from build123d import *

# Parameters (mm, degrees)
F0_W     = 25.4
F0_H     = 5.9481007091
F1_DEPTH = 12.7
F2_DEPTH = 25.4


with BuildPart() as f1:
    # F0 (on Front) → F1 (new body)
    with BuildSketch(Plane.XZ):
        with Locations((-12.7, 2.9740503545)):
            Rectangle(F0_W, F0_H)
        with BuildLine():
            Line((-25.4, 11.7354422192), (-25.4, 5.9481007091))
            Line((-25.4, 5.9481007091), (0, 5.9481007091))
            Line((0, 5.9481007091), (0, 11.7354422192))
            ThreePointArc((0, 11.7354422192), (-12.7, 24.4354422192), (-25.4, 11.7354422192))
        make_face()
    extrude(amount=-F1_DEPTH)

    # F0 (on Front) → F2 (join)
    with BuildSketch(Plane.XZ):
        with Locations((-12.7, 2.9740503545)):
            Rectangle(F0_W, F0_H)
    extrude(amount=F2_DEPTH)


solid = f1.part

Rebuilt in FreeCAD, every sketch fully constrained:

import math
import FreeCAD as App
import Part
import Sketcher
from FreeCAD import Vector
Q = App.Units.Quantity


def add_polygon(sketch, points):
    """Adds a closed chain of lines whose ends are joined by coincident constraints."""
    first, n = sketch.GeometryCount, len(points)
    for a, b in zip(points, points[1:] + points[:1]):
        sketch.addGeometry(Part.LineSegment(App.Vector(*a, 0), App.Vector(*b, 0)), False)
    for i in range(n):
        sketch.addConstraint(Sketcher.Constraint("Coincident", first + i, 2, first + (i + 1) % n, 1))

doc = App.newDocument("Part")
body = doc.addObject("PartDesign::Body", "Body")

# Sketch on XZ plane
sketch1 = body.newObject("Sketcher::SketchObject", "Sketch")
sketch1.AttachmentSupport = (doc.getObject("XZ_Plane"), [""])
sketch1.MapMode = "FlatFace"
sketch1.addGeometry(Part.LineSegment(Vector(-25, 0, 0), Vector(0, 0, 0)), False)
sketch1.addGeometry(Part.LineSegment(Vector(0, 0, 0), Vector(0, 12, 0)), False)
sketch1.addGeometry(Part.ArcOfCircle(Part.Circle(Vector(-13, 12, 0), Vector(0, 0, 1), 13), math.radians(0), math.radians(180)), False)
sketch1.addGeometry(Part.LineSegment(Vector(-25, 12, 0), Vector(-25, 0, 0)), False)
sketch1.addConstraint(Sketcher.Constraint("Coincident", 0, 2, 1, 1))
sketch1.addConstraint(Sketcher.Constraint("Tangent", 1, 2, 2, 1))
sketch1.addConstraint(Sketcher.Constraint("Tangent", 2, 2, 3, 1))
sketch1.addConstraint(Sketcher.Constraint("Coincident", 3, 2, 0, 1))
sketch1.addConstraint(Sketcher.Constraint("Horizontal", 0))
sketch1.addConstraint(Sketcher.Constraint("Vertical", 1))
sketch1.addConstraint(Sketcher.Constraint("Vertical", 3))
sketch1.addConstraint(Sketcher.Constraint("Coincident", 0, 2, -1, 1))
sketch1.addConstraint(Sketcher.Constraint("Radius", 2, Q("0.5 in")))
sketch1.addConstraint(Sketcher.Constraint("DistanceY", 1, 1, 1, 2, Q("11.735442 mm")))
pad1 = body.newObject("PartDesign::Pad", "Pad")
pad1.Profile = sketch1
pad1.Length = Q("0.5 in")
pad1.Reversed = True

# Sketch on XZ plane
sketch2 = body.newObject("Sketcher::SketchObject", "Sketch001")
sketch2.AttachmentSupport = (doc.getObject("XZ_Plane"), [""])
sketch2.MapMode = "FlatFace"
add_polygon(sketch2, [(-25, 6), (-25, 0), (0, 0), (0, 6)])  # lines 0-3
sketch2.addConstraint(Sketcher.Constraint("Vertical", 0))
sketch2.addConstraint(Sketcher.Constraint("Horizontal", 1))
sketch2.addConstraint(Sketcher.Constraint("Vertical", 2))
sketch2.addConstraint(Sketcher.Constraint("Horizontal", 3))
sketch2.addConstraint(Sketcher.Constraint("Coincident", 1, 2, -1, 1))
sketch2.addConstraint(Sketcher.Constraint("DistanceX", 1, 1, 1, 2, Q("1 in")))
sketch2.addConstraint(Sketcher.Constraint("DistanceY", 0, 2, 0, 1, Q("5.948101 mm")))
pad2 = body.newObject("PartDesign::Pad", "Pad001")
pad2.Profile = sketch2
pad2.Length = Q("1 in")

doc.recompute()
